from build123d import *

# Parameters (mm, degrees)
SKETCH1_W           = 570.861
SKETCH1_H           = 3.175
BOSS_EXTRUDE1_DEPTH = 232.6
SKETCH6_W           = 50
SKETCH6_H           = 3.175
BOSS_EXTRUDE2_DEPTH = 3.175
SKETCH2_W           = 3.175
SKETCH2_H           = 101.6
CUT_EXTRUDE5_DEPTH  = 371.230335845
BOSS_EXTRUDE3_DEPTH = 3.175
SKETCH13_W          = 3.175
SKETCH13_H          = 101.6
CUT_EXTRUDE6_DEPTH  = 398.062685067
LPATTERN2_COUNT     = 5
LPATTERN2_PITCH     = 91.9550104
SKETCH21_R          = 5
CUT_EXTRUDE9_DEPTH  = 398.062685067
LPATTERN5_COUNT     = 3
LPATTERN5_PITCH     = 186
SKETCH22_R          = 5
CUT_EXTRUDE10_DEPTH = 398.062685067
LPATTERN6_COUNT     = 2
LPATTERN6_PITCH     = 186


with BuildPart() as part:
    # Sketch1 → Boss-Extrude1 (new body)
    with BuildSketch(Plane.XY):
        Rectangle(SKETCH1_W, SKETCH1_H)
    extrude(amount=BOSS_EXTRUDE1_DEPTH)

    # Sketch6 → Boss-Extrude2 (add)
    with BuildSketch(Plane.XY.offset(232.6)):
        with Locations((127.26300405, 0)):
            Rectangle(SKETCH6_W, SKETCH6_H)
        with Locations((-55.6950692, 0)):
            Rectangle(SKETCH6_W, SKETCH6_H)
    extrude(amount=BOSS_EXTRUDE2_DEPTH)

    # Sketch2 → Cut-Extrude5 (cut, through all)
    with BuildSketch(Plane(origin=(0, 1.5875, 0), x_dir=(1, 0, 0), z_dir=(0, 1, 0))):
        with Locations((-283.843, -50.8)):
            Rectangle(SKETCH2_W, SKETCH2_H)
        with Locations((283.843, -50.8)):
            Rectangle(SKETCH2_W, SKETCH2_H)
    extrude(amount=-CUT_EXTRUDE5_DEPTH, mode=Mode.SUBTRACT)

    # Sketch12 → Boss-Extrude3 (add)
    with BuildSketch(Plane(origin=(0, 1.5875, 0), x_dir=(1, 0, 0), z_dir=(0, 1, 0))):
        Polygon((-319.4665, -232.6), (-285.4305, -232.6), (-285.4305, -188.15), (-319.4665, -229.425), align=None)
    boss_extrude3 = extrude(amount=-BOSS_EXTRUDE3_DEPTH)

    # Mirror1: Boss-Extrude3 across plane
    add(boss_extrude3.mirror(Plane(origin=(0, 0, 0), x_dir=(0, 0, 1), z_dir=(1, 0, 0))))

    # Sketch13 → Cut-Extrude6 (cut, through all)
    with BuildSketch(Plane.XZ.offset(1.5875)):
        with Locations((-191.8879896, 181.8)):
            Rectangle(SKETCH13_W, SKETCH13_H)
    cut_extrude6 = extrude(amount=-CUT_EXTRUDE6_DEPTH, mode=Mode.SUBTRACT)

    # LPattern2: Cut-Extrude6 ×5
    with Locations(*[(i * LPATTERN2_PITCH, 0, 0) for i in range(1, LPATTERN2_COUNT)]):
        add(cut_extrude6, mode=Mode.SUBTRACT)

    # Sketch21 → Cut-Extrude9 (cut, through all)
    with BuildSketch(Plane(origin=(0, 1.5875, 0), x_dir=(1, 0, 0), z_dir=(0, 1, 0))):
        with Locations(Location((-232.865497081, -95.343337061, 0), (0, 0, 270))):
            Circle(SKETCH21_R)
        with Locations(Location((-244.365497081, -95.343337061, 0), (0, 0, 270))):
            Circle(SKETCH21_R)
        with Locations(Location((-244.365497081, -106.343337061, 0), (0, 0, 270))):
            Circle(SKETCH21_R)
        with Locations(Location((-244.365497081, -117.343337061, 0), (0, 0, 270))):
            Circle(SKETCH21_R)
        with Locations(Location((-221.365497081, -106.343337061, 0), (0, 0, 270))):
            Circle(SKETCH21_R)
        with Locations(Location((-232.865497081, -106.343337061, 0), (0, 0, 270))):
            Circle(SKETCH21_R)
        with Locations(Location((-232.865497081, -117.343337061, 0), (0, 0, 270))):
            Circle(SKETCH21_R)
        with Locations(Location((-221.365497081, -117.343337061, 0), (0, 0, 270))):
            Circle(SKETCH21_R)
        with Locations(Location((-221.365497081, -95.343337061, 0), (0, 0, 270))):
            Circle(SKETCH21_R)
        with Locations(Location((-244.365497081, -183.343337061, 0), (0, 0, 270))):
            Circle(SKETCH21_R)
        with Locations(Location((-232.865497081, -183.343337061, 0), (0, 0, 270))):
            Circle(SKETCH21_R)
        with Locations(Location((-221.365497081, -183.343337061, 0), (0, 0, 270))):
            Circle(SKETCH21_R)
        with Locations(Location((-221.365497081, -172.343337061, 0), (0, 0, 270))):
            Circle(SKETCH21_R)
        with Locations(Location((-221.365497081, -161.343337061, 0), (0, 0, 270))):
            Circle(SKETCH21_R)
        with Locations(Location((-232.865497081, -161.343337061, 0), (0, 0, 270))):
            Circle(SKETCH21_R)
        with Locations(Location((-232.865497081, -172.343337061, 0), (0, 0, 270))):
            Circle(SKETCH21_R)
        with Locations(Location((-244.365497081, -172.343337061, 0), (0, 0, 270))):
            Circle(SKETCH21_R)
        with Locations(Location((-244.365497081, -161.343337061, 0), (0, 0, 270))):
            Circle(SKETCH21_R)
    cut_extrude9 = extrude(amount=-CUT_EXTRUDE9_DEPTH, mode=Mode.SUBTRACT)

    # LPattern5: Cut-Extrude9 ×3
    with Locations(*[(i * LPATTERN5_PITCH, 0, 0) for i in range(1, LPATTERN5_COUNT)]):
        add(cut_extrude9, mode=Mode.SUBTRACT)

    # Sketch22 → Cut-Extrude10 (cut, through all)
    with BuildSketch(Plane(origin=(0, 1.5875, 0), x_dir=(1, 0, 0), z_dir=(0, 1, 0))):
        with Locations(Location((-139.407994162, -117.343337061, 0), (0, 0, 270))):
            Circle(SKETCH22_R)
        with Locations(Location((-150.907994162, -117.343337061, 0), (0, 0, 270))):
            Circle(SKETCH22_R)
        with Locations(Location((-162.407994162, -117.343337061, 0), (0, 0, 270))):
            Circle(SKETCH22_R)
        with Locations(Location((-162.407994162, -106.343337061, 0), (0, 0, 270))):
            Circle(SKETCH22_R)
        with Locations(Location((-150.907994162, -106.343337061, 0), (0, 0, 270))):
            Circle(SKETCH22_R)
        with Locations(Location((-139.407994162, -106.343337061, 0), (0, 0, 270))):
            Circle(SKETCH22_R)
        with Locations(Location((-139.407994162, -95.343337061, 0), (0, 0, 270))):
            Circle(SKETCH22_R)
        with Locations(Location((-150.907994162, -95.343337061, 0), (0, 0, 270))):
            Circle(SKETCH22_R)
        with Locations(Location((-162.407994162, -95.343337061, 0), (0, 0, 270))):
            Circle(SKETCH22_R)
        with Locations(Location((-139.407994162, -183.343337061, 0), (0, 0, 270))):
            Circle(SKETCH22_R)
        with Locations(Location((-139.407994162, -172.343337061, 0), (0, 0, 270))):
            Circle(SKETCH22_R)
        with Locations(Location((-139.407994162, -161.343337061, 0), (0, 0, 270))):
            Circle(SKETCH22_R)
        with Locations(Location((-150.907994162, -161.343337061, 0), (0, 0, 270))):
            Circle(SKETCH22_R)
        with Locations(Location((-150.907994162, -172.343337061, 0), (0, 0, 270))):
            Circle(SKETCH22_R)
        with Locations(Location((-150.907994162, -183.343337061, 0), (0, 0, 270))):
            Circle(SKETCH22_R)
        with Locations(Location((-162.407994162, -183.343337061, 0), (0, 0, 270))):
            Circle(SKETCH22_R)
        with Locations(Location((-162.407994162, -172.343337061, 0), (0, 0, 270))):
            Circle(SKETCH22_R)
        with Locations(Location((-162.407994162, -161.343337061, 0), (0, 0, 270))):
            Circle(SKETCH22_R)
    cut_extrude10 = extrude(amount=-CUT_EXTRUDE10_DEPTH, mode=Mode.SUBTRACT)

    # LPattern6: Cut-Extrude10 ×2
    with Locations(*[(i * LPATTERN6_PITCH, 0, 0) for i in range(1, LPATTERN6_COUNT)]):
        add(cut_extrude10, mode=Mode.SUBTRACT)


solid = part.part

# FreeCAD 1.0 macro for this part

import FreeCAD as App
import Part
import Sketcher
Q = App.Units.Quantity

doc = App.newDocument("Part")
body = doc.addObject("PartDesign::Body", "Body")

# Sketch on XY plane
sketch1 = doc.addObject("Sketcher::SketchObject", "Sketch")
body.addObject(sketch1)
sketch1.AttachmentSupport = (doc.XY_Plane, [""])
sketch1.MapMode = "FlatFace"
sketch1.addGeometry(Part.LineSegment(App.Vector(-285.4305, 1.5875, 0), App.Vector(-285.4305, -1.5875, 0)), False)
sketch1.addGeometry(Part.LineSegment(App.Vector(-285.4305, -1.5875, 0), App.Vector(285.4305, -1.5875, 0)), False)
sketch1.addGeometry(Part.LineSegment(App.Vector(285.4305, -1.5875, 0), App.Vector(285.4305, 1.5875, 0)), False)
sketch1.addGeometry(Part.LineSegment(App.Vector(285.4305, 1.5875, 0), App.Vector(-285.4305, 1.5875, 0)), False)
sketch1.addConstraint(Sketcher.Constraint("Coincident", 0, 2, 1, 1))
sketch1.addConstraint(Sketcher.Constraint("Coincident", 1, 2, 2, 1))
sketch1.addConstraint(Sketcher.Constraint("Coincident", 2, 2, 3, 1))
sketch1.addConstraint(Sketcher.Constraint("Coincident", 3, 2, 0, 1))
sketch1.addConstraint(Sketcher.Constraint("Vertical", 0))
sketch1.addConstraint(Sketcher.Constraint("Horizontal", 1))
sketch1.addConstraint(Sketcher.Constraint("Vertical", 2))
sketch1.addConstraint(Sketcher.Constraint("Horizontal", 3))
sketch1.addConstraint(Sketcher.Constraint("Symmetric", 0, 2, 2, 2, -1, 1))
sketch1.addConstraint(Sketcher.Constraint("DistanceY", 0, 2, 0, 1, Q("0.125 in")))
sketch1.addConstraint(Sketcher.Constraint("DistanceX", 1, 1, 1, 2, Q("570.861 mm")))
pad1 = doc.addObject("PartDesign::Pad", "Pad")
body.addObject(pad1)
pad1.Profile = sketch1
pad1.Length = 232.6

# Sketch on XY plane
sketch2 = doc.addObject("Sketcher::SketchObject", "Sketch001")
body.addObject(sketch2)
sketch2.AttachmentSupport = (doc.XY_Plane, [""])
sketch2.MapMode = "FlatFace"
sketch2.AttachmentOffset = App.Placement(App.Vector(0, 0, 232.6), App.Rotation())
sketch2.addGeometry(Part.LineSegment(App.Vector(102.263004, 1.5875, 0), App.Vector(102.263004, -1.5875, 0)), False)
sketch2.addGeometry(Part.LineSegment(App.Vector(102.263004, -1.5875, 0), App.Vector(152.263004, -1.5875, 0)), False)
sketch2.addGeometry(Part.LineSegment(App.Vector(152.263004, -1.5875, 0), App.Vector(152.263004, 1.5875, 0)), False)
sketch2.addGeometry(Part.LineSegment(App.Vector(152.263004, 1.5875, 0), App.Vector(102.263004, 1.5875, 0)), False)
sketch2.addGeometry(Part.LineSegment(App.Vector(-80.695069, 1.5875, 0), App.Vector(-80.695069, -1.5875, 0)), False)
sketch2.addGeometry(Part.LineSegment(App.Vector(-80.695069, -1.5875, 0), App.Vector(-30.695069, -1.5875, 0)), False)
sketch2.addGeometry(Part.LineSegment(App.Vector(-30.695069, -1.5875, 0), App.Vector(-30.695069, 1.5875, 0)), False)
sketch2.addGeometry(Part.LineSegment(App.Vector(-30.695069, 1.5875, 0), App.Vector(-80.695069, 1.5875, 0)), False)
sketch2.addConstraint(Sketcher.Constraint("Coincident", 0, 2, 1, 1))
sketch2.addConstraint(Sketcher.Constraint("Coincident", 1, 2, 2, 1))
sketch2.addConstraint(Sketcher.Constraint("Coincident", 2, 2, 3, 1))
sketch2.addConstraint(Sketcher.Constraint("Coincident", 3, 2, 0, 1))
sketch2.addConstraint(Sketcher.Constraint("Coincident", 4, 2, 5, 1))
sketch2.addConstraint(Sketcher.Constraint("Coincident", 5, 2, 6, 1))
sketch2.addConstraint(Sketcher.Constraint("Coincident", 6, 2, 7, 1))
sketch2.addConstraint(Sketcher.Constraint("Coincident", 7, 2, 4, 1))
sketch2.addConstraint(Sketcher.Constraint("Vertical", 0))
sketch2.addConstraint(Sketcher.Constraint("Horizontal", 1))
sketch2.addConstraint(Sketcher.Constraint("Vertical", 2))
sketch2.addConstraint(Sketcher.Constraint("Horizontal", 3))
sketch2.addConstraint(Sketcher.Constraint("Vertical", 4))
sketch2.addConstraint(Sketcher.Constraint("Horizontal", 5))
sketch2.addConstraint(Sketcher.Constraint("Vertical", 6))
sketch2.addConstraint(Sketcher.Constraint("Horizontal", 7))
sketch2.addConstraint(Sketcher.Constraint("Horizontal", 1, 2, 4, 2))
sketch2.addConstraint(Sketcher.Constraint("Horizontal", 3, 2, 6, 2))
sketch2.addConstraint(Sketcher.Constraint("Equal", 3, 5))
sketch2.addConstraint(Sketcher.Constraint("DistanceY", 0, 2, 0, 1, Q("0.125 in")))
sketch2.addConstraint(Sketcher.Constraint("DistanceY", 0, 2, -1, 1, Q("0.0625 in")))
sketch2.addConstraint(Sketcher.Constraint("DistanceX", 1, 1, 1, 2, Q("50 mm")))
sketch2.addConstraint(Sketcher.Constraint("DistanceX", 4, 2, -1, 1, Q("80.695069 mm")))
sketch2.addConstraint(Sketcher.Constraint("DistanceX", -1, 1, 0, 2, Q("102.263004 mm")))
pad2 = doc.addObject("PartDesign::Pad", "Pad001")
body.addObject(pad2)
pad2.Profile = sketch2
pad2.Length = Q("0.125 in")

# Sketch on XZ plane
sketch3 = doc.addObject("Sketcher::SketchObject", "Sketch002")
body.addObject(sketch3)
sketch3.AttachmentSupport = (doc.XZ_Plane, [""])
sketch3.MapMode = "FlatFace"
sketch3.AttachmentOffset = App.Placement(App.Vector(0, 0, -0.0625 * 25.4), App.Rotation())
sketch3.addGeometry(Part.LineSegment(App.Vector(-285.4305, 0, 0), App.Vector(-285.4305, 101.6, 0)), False)
sketch3.addGeometry(Part.LineSegment(App.Vector(-285.4305, 101.6, 0), App.Vector(-282.2555, 101.6, 0)), False)
sketch3.addGeometry(Part.LineSegment(App.Vector(-282.2555, 101.6, 0), App.Vector(-282.2555, 0, 0)), False)
sketch3.addGeometry(Part.LineSegment(App.Vector(-282.2555, 0, 0), App.Vector(-285.4305, 0, 0)), False)
sketch3.addGeometry(Part.LineSegment(App.Vector(282.2555, 0, 0), App.Vector(282.2555, 101.6, 0)), False)
sketch3.addGeometry(Part.LineSegment(App.Vector(282.2555, 101.6, 0), App.Vector(285.4305, 101.6, 0)), False)
sketch3.addGeometry(Part.LineSegment(App.Vector(285.4305, 101.6, 0), App.Vector(285.4305, 0, 0)), False)
sketch3.addGeometry(Part.LineSegment(App.Vector(285.4305, 0, 0), App.Vector(282.2555, 0, 0)), False)
sketch3.addConstraint(Sketcher.Constraint("Coincident", 0, 2, 1, 1))
sketch3.addConstraint(Sketcher.Constraint("Coincident", 1, 2, 2, 1))
sketch3.addConstraint(Sketcher.Constraint("Coincident", 2, 2, 3, 1))
sketch3.addConstraint(Sketcher.Constraint("Coincident", 3, 2, 0, 1))
sketch3.addConstraint(Sketcher.Constraint("Coincident", 4, 2, 5, 1))
sketch3.addConstraint(Sketcher.Constraint("Coincident", 5, 2, 6, 1))
sketch3.addConstraint(Sketcher.Constraint("Coincident", 6, 2, 7, 1))
sketch3.addConstraint(Sketcher.Constraint("Coincident", 7, 2, 4, 1))
sketch3.addConstraint(Sketcher.Constraint("Vertical", 0))
sketch3.addConstraint(Sketcher.Constraint("Horizontal", 1))
sketch3.addConstraint(Sketcher.Constraint("Vertical", 2))
sketch3.addConstraint(Sketcher.Constraint("Horizontal", 3))
sketch3.addConstraint(Sketcher.Constraint("Vertical", 4))
sketch3.addConstraint(Sketcher.Constraint("Horizontal", 5))
sketch3.addConstraint(Sketcher.Constraint("Vertical", 6))
sketch3.addConstraint(Sketcher.Constraint("Horizontal", 7))
sketch3.addConstraint(Sketcher.Constraint("Symmetric", 3, 2, 6, 2, -1, 1))
sketch3.addConstraint(Sketcher.Constraint("Symmetric", 1, 2, 4, 2, -2))
sketch3.addConstraint(Sketcher.Constraint("PointOnObject", 2, 2, -1))
sketch3.addConstraint(Sketcher.Constraint("DistanceY", 0, 1, 0, 2, Q("4 in")))
sketch3.addConstraint(Sketcher.Constraint("DistanceX", 1, 1, 1, 2, Q("0.125 in")))
sketch3.addConstraint(Sketcher.Constraint("DistanceX", 0, 2, -1, 1, Q("285.4305 mm")))
pocket1 = doc.addObject("PartDesign::Pocket", "Pocket")
body.addObject(pocket1)
pocket1.Profile = sketch3
pocket1.Type = "ThroughAll"
pocket1.Reversed = True

# Sketch on XZ plane
sketch4 = doc.addObject("Sketcher::SketchObject", "Sketch003")
body.addObject(sketch4)
sketch4.AttachmentSupport = (doc.XZ_Plane, [""])
sketch4.MapMode = "FlatFace"
sketch4.AttachmentOffset = App.Placement(App.Vector(0, 0, -0.0625 * 25.4), App.Rotation())
sketch4.addGeometry(Part.LineSegment(App.Vector(-319.4665, 232.6, 0), App.Vector(-285.4305, 232.6, 0)), False)
sketch4.addGeometry(Part.LineSegment(App.Vector(-285.4305, 232.6, 0), App.Vector(-285.4305, 188.15, 0)), False)
sketch4.addGeometry(Part.LineSegment(App.Vector(-285.4305, 188.15, 0), App.Vector(-319.4665, 229.425, 0)), False)
sketch4.addGeometry(Part.LineSegment(App.Vector(-319.4665, 229.425, 0), App.Vector(-319.4665, 232.6, 0)), False)
sketch4.addConstraint(Sketcher.Constraint("Coincident", 0, 2, 1, 1))
sketch4.addConstraint(Sketcher.Constraint("Coincident", 1, 2, 2, 1))
sketch4.addConstraint(Sketcher.Constraint("Coincident", 2, 2, 3, 1))
sketch4.addConstraint(Sketcher.Constraint("Coincident", 3, 2, 0, 1))
sketch4.addConstraint(Sketcher.Constraint("Horizontal", 0))
sketch4.addConstraint(Sketcher.Constraint("Vertical", 1))
sketch4.addConstraint(Sketcher.Constraint("Vertical", 3))
sketch4.addConstraint(Sketcher.Constraint("DistanceX", 0, 1, 0, 2, Q("1.34 in")))
sketch4.addConstraint(Sketcher.Constraint("DistanceY", 1, 2, 1, 1, Q("1.75 in")))
sketch4.addConstraint(Sketcher.Constraint("DistanceY", 3, 1, 3, 2, Q("0.125 in")))
sketch4.addConstraint(Sketcher.Constraint("DistanceX", 0, 2, -1, 1, Q("285.4305 mm")))
sketch4.addConstraint(Sketcher.Constraint("DistanceY", -1, 1, 0, 2, Q("232.6 mm")))
pad3 = doc.addObject("PartDesign::Pad", "Pad002")
body.addObject(pad3)
pad3.Profile = sketch4
pad3.Length = Q("0.125 in")
doc.recompute()

mirrored = doc.addObject("PartDesign::Mirrored", "Mirrored")
body.addObject(mirrored)
mirrored.Originals = [pad3]
mirrored.MirrorPlane = (doc.YZ_Plane, [""])
body.Tip = mirrored

# Sketch on XZ plane
sketch5 = doc.addObject("Sketcher::SketchObject", "Sketch004")
body.addObject(sketch5)
sketch5.AttachmentSupport = (doc.XZ_Plane, [""])
sketch5.MapMode = "FlatFace"
sketch5.AttachmentOffset = App.Placement(App.Vector(0, 0, 0.0625 * 25.4), App.Rotation())
sketch5.addGeometry(Part.LineSegment(App.Vector(-193.47549, 232.6, 0), App.Vector(-193.47549, 131, 0)), False)
sketch5.addGeometry(Part.LineSegment(App.Vector(-193.47549, 131, 0), App.Vector(-190.30049, 131, 0)), False)
sketch5.addGeometry(Part.LineSegment(App.Vector(-190.30049, 131, 0), App.Vector(-190.30049, 232.6, 0)), False)
sketch5.addGeometry(Part.LineSegment(App.Vector(-190.30049, 232.6, 0), App.Vector(-193.47549, 232.6, 0)), False)
sketch5.addConstraint(Sketcher.Constraint("Coincident", 0, 2, 1, 1))
sketch5.addConstraint(Sketcher.Constraint("Coincident", 1, 2, 2, 1))
sketch5.addConstraint(Sketcher.Constraint("Coincident", 2, 2, 3, 1))
sketch5.addConstraint(Sketcher.Constraint("Coincident", 3, 2, 0, 1))
sketch5.addConstraint(Sketcher.Constraint("Vertical", 0))
sketch5.addConstraint(Sketcher.Constraint("Horizontal", 1))
sketch5.addConstraint(Sketcher.Constraint("Vertical", 2))
sketch5.addConstraint(Sketcher.Constraint("Horizontal", 3))
sketch5.addConstraint(Sketcher.Constraint("DistanceY", 0, 2, 0, 1, Q("4 in")))
sketch5.addConstraint(Sketcher.Constraint("DistanceX", 1, 1, 1, 2, Q("0.125 in")))
sketch5.addConstraint(Sketcher.Constraint("DistanceY", -1, 1, 0, 2, Q("131 mm")))
sketch5.addConstraint(Sketcher.Constraint("DistanceX", 0, 2, -1, 1, Q("193.47549 mm")))
pocket2 = doc.addObject("PartDesign::Pocket", "Pocket001")
body.addObject(pocket2)
pocket2.Profile = sketch5
pocket2.Type = "ThroughAll"
doc.recompute()

linearpattern = doc.addObject("PartDesign::LinearPattern", "LinearPattern")
body.addObject(linearpattern)
linearpattern.Originals = [pocket2]
linearpattern.Direction = (doc.X_Axis, [""])
linearpattern.Mode = "offset"
linearpattern.Offset = 91.95501
linearpattern.Occurrences = 5
body.Tip = linearpattern

# Sketch on XZ plane
sketch6 = doc.addObject("Sketcher::SketchObject", "Sketch005")
body.addObject(sketch6)
sketch6.AttachmentSupport = (doc.XZ_Plane, [""])
sketch6.MapMode = "FlatFace"
sketch6.AttachmentOffset = App.Placement(App.Vector(0, 0, -0.0625 * 25.4), App.Rotation())
sketch6.addGeometry(Part.Circle(App.Vector(-232.865497, 95.343337, 0), App.Vector(0, 0, 1), 5), False)
sketch6.addGeometry(Part.Circle(App.Vector(-244.365497, 95.343337, 0), App.Vector(0, 0, 1), 5), False)
sketch6.addGeometry(Part.Circle(App.Vector(-244.365497, 106.343337, 0), App.Vector(0, 0, 1), 5), False)
sketch6.addGeometry(Part.Circle(App.Vector(-244.365497, 117.343337, 0), App.Vector(0, 0, 1), 5), False)
sketch6.addGeometry(Part.Circle(App.Vector(-221.365497, 106.343337, 0), App.Vector(0, 0, 1), 5), False)
sketch6.addGeometry(Part.Circle(App.Vector(-232.865497, 106.343337, 0), App.Vector(0, 0, 1), 5), False)
sketch6.addGeometry(Part.Circle(App.Vector(-232.865497, 117.343337, 0), App.Vector(0, 0, 1), 5), False)
sketch6.addGeometry(Part.Circle(App.Vector(-221.365497, 117.343337, 0), App.Vector(0, 0, 1), 5), False)
sketch6.addGeometry(Part.Circle(App.Vector(-221.365497, 95.343337, 0), App.Vector(0, 0, 1), 5), False)
sketch6.addGeometry(Part.Circle(App.Vector(-244.365497, 183.343337, 0), App.Vector(0, 0, 1), 5), False)
sketch6.addGeometry(Part.Circle(App.Vector(-232.865497, 183.343337, 0), App.Vector(0, 0, 1), 5), False)
sketch6.addGeometry(Part.Circle(App.Vector(-221.365497, 183.343337, 0), App.Vector(0, 0, 1), 5), False)
sketch6.addGeometry(Part.Circle(App.Vector(-221.365497, 172.343337, 0), App.Vector(0, 0, 1), 5), False)
sketch6.addGeometry(Part.Circle(App.Vector(-221.365497, 161.343337, 0), App.Vector(0, 0, 1), 5), False)
sketch6.addGeometry(Part.Circle(App.Vector(-232.865497, 161.343337, 0), App.Vector(0, 0, 1), 5), False)
sketch6.addGeometry(Part.Circle(App.Vector(-232.865497, 172.343337, 0), App.Vector(0, 0, 1), 5), False)
sketch6.addGeometry(Part.Circle(App.Vector(-244.365497, 172.343337, 0), App.Vector(0, 0, 1), 5), False)
sketch6.addGeometry(Part.Circle(App.Vector(-244.365497, 161.343337, 0), App.Vector(0, 0, 1), 5), False)
sketch6.addConstraint(Sketcher.Constraint("Equal", 0, 1))
sketch6.addConstraint(Sketcher.Constraint("Equal", 1, 2))
sketch6.addConstraint(Sketcher.Constraint("Equal", 2, 3))
sketch6.addConstraint(Sketcher.Constraint("Equal", 3, 4))
sketch6.addConstraint(Sketcher.Constraint("Equal", 4, 5))
sketch6.addConstraint(Sketcher.Constraint("Equal", 5, 6))
sketch6.addConstraint(Sketcher.Constraint("Equal", 6, 7))
sketch6.addConstraint(Sketcher.Constraint("Equal", 7, 8))
sketch6.addConstraint(Sketcher.Constraint("Equal", 8, 9))
sketch6.addConstraint(Sketcher.Constraint("Equal", 9, 10))
sketch6.addConstraint(Sketcher.Constraint("Equal", 10, 11))
sketch6.addConstraint(Sketcher.Constraint("Equal", 11, 12))
sketch6.addConstraint(Sketcher.Constraint("Equal", 12, 13))
sketch6.addConstraint(Sketcher.Constraint("Equal", 13, 14))
sketch6.addConstraint(Sketcher.Constraint("Equal", 14, 15))
sketch6.addConstraint(Sketcher.Constraint("Equal", 15, 16))
sketch6.addConstraint(Sketcher.Constraint("Equal", 16, 17))
sketch6.addConstraint(Sketcher.Constraint("Horizontal", 0, 3, 1, 3))
sketch6.addConstraint(Sketcher.Constraint("Horizontal", 2, 3, 4, 3))
sketch6.addConstraint(Sketcher.Constraint("Horizontal", 4, 3, 5, 3))
sketch6.addConstraint(Sketcher.Constraint("Horizontal", 3, 3, 6, 3))
sketch6.addConstraint(Sketcher.Constraint("Horizontal", 6, 3, 7, 3))
sketch6.addConstraint(Sketcher.Constraint("Horizontal", 1, 3, 8, 3))
sketch6.addConstraint(Sketcher.Constraint("Horizontal", 9, 3, 10, 3))
sketch6.addConstraint(Sketcher.Constraint("Horizontal", 10, 3, 11, 3))
sketch6.addConstraint(Sketcher.Constraint("Horizontal", 13, 3, 14, 3))
sketch6.addConstraint(Sketcher.Constraint("Horizontal", 12, 3, 15, 3))
sketch6.addConstraint(Sketcher.Constraint("Horizontal", 15, 3, 16, 3))
sketch6.addConstraint(Sketcher.Constraint("Horizontal", 14, 3, 17, 3))
sketch6.addConstraint(Sketcher.Constraint("Vertical", 1, 3, 2, 3))
sketch6.addConstraint(Sketcher.Constraint("Vertical", 2, 3, 3, 3))
sketch6.addConstraint(Sketcher.Constraint("Vertical", 0, 3, 5, 3))
sketch6.addConstraint(Sketcher.Constraint("Vertical", 5, 3, 6, 3))
sketch6.addConstraint(Sketcher.Constraint("Vertical", 4, 3, 7, 3))
sketch6.addConstraint(Sketcher.Constraint("Vertical", 7, 3, 8, 3))
sketch6.addConstraint(Sketcher.Constraint("Vertical", 3, 3, 9, 3))
sketch6.addConstraint(Sketcher.Constraint("Vertical", 6, 3, 10, 3))
sketch6.addConstraint(Sketcher.Constraint("Vertical", 8, 3, 11, 3))
sketch6.addConstraint(Sketcher.Constraint("Vertical", 11, 3, 12, 3))
sketch6.addConstraint(Sketcher.Constraint("Vertical", 12, 3, 13, 3))
sketch6.addConstraint(Sketcher.Constraint("Vertical", 10, 3, 14, 3))
sketch6.addConstraint(Sketcher.Constraint("Vertical", 14, 3, 15, 3))
sketch6.addConstraint(Sketcher.Constraint("Vertical", 9, 3, 16, 3))
sketch6.addConstraint(Sketcher.Constraint("Vertical", 16, 3, 17, 3))
sketch6.addConstraint(Sketcher.Constraint("Diameter", 0, Q("10 mm")))
sketch6.addConstraint(Sketcher.Constraint("DistanceY", -1, 1, 13, 3, Q("6.3520999 in")))
sketch6.addConstraint(Sketcher.Constraint("DistanceX", 1, 3, 0, 3, Q("11.5 mm")))
sketch6.addConstraint(Sketcher.Constraint("DistanceY", 1, 3, 2, 3, Q("11 mm")))
sketch6.addConstraint(Sketcher.Constraint("DistanceY", 2, 3, 3, 3, Q("11 mm")))
sketch6.addConstraint(Sketcher.Constraint("DistanceX", 0, 3, 4, 3, Q("11.5 mm")))
sketch6.addConstraint(Sketcher.Constraint("DistanceY", 3, 3, 9, 3, Q("66 mm")))
sketch6.addConstraint(Sketcher.Constraint("DistanceY", 12, 3, 11, 3, Q("11 mm")))
sketch6.addConstraint(Sketcher.Constraint("DistanceY", 13, 3, 12, 3, Q("11 mm")))
sketch6.addConstraint(Sketcher.Constraint("DistanceX", 0, 3, -1, 1, Q("232.865497 mm")))
pocket3 = doc.addObject("PartDesign::Pocket", "Pocket002")
body.addObject(pocket3)
pocket3.Profile = sketch6
pocket3.Type = "ThroughAll"
pocket3.Reversed = True
doc.recompute()

linearpattern2 = doc.addObject("PartDesign::LinearPattern", "LinearPattern001")
body.addObject(linearpattern2)
linearpattern2.Originals = [pocket3]
linearpattern2.Direction = (doc.X_Axis, [""])
linearpattern2.Mode = "offset"
linearpattern2.Offset = 186
linearpattern2.Occurrences = 3
body.Tip = linearpattern2

# Sketch on XZ plane
sketch7 = doc.addObject("Sketcher::SketchObject", "Sketch006")
body.addObject(sketch7)
sketch7.AttachmentSupport = (doc.XZ_Plane, [""])
sketch7.MapMode = "FlatFace"
sketch7.AttachmentOffset = App.Placement(App.Vector(0, 0, -0.0625 * 25.4), App.Rotation())
sketch7.addGeometry(Part.Circle(App.Vector(-139.407994, 117.343337, 0), App.Vector(0, 0, 1), 5), False)
sketch7.addGeometry(Part.Circle(App.Vector(-150.907994, 117.343337, 0), App.Vector(0, 0, 1), 5), False)
sketch7.addGeometry(Part.Circle(App.Vector(-162.407994, 117.343337, 0), App.Vector(0, 0, 1), 5), False)
sketch7.addGeometry(Part.Circle(App.Vector(-162.407994, 106.343337, 0), App.Vector(0, 0, 1), 5), False)
sketch7.addGeometry(Part.Circle(App.Vector(-150.907994, 106.343337, 0), App.Vector(0, 0, 1), 5), False)
sketch7.addGeometry(Part.Circle(App.Vector(-139.407994, 106.343337, 0), App.Vector(0, 0, 1), 5), False)
sketch7.addGeometry(Part.Circle(App.Vector(-139.407994, 95.343337, 0), App.Vector(0, 0, 1), 5), False)
sketch7.addGeometry(Part.Circle(App.Vector(-150.907994, 95.343337, 0), App.Vector(0, 0, 1), 5), False)
sketch7.addGeometry(Part.Circle(App.Vector(-162.407994, 95.343337, 0), App.Vector(0, 0, 1), 5), False)
sketch7.addGeometry(Part.Circle(App.Vector(-139.407994, 183.343337, 0), App.Vector(0, 0, 1), 5), False)
sketch7.addGeometry(Part.Circle(App.Vector(-139.407994, 172.343337, 0), App.Vector(0, 0, 1), 5), False)
sketch7.addGeometry(Part.Circle(App.Vector(-139.407994, 161.343337, 0), App.Vector(0, 0, 1), 5), False)
sketch7.addGeometry(Part.Circle(App.Vector(-150.907994, 161.343337, 0), App.Vector(0, 0, 1), 5), False)
sketch7.addGeometry(Part.Circle(App.Vector(-150.907994, 172.343337, 0), App.Vector(0, 0, 1), 5), False)
sketch7.addGeometry(Part.Circle(App.Vector(-150.907994, 183.343337, 0), App.Vector(0, 0, 1), 5), False)
sketch7.addGeometry(Part.Circle(App.Vector(-162.407994, 183.343337, 0), App.Vector(0, 0, 1), 5), False)
sketch7.addGeometry(Part.Circle(App.Vector(-162.407994, 172.343337, 0), App.Vector(0, 0, 1), 5), False)
sketch7.addGeometry(Part.Circle(App.Vector(-162.407994, 161.343337, 0), App.Vector(0, 0, 1), 5), False)
sketch7.addConstraint(Sketcher.Constraint("Equal", 0, 1))
sketch7.addConstraint(Sketcher.Constraint("Equal", 1, 2))
sketch7.addConstraint(Sketcher.Constraint("Equal", 2, 3))
sketch7.addConstraint(Sketcher.Constraint("Equal", 3, 4))
sketch7.addConstraint(Sketcher.Constraint("Equal", 4, 5))
sketch7.addConstraint(Sketcher.Constraint("Equal", 5, 6))
sketch7.addConstraint(Sketcher.Constraint("Equal", 6, 7))
sketch7.addConstraint(Sketcher.Constraint("Equal", 7, 8))
sketch7.addConstraint(Sketcher.Constraint("Equal", 8, 9))
sketch7.addConstraint(Sketcher.Constraint("Equal", 9, 10))
sketch7.addConstraint(Sketcher.Constraint("Equal", 10, 11))
sketch7.addConstraint(Sketcher.Constraint("Equal", 11, 12))
sketch7.addConstraint(Sketcher.Constraint("Equal", 12, 13))
sketch7.addConstraint(Sketcher.Constraint("Equal", 13, 14))
sketch7.addConstraint(Sketcher.Constraint("Equal", 14, 15))
sketch7.addConstraint(Sketcher.Constraint("Equal", 15, 16))
sketch7.addConstraint(Sketcher.Constraint("Equal", 16, 17))
sketch7.addConstraint(Sketcher.Constraint("Horizontal", 0, 3, 1, 3))
sketch7.addConstraint(Sketcher.Constraint("Horizontal", 1, 3, 2, 3))
sketch7.addConstraint(Sketcher.Constraint("Horizontal", 3, 3, 4, 3))
sketch7.addConstraint(Sketcher.Constraint("Horizontal", 4, 3, 5, 3))
sketch7.addConstraint(Sketcher.Constraint("Horizontal", 6, 3, 7, 3))
sketch7.addConstraint(Sketcher.Constraint("Horizontal", 7, 3, 8, 3))
sketch7.addConstraint(Sketcher.Constraint("Horizontal", 11, 3, 12, 3))
sketch7.addConstraint(Sketcher.Constraint("Horizontal", 10, 3, 13, 3))
sketch7.addConstraint(Sketcher.Constraint("Horizontal", 9, 3, 14, 3))
sketch7.addConstraint(Sketcher.Constraint("Horizontal", 14, 3, 15, 3))
sketch7.addConstraint(Sketcher.Constraint("Horizontal", 13, 3, 16, 3))
sketch7.addConstraint(Sketcher.Constraint("Horizontal", 12, 3, 17, 3))
sketch7.addConstraint(Sketcher.Constraint("Vertical", 2, 3, 3, 3))
sketch7.addConstraint(Sketcher.Constraint("Vertical", 1, 3, 4, 3))
sketch7.addConstraint(Sketcher.Constraint("Vertical", 0, 3, 5, 3))
sketch7.addConstraint(Sketcher.Constraint("Vertical", 5, 3, 6, 3))
sketch7.addConstraint(Sketcher.Constraint("Vertical", 4, 3, 7, 3))
sketch7.addConstraint(Sketcher.Constraint("Vertical", 3, 3, 8, 3))
sketch7.addConstraint(Sketcher.Constraint("Vertical", 6, 3, 9, 3))
sketch7.addConstraint(Sketcher.Constraint("Vertical", 9, 3, 10, 3))
sketch7.addConstraint(Sketcher.Constraint("Vertical", 10, 3, 11, 3))
sketch7.addConstraint(Sketcher.Constraint("Vertical", 7, 3, 12, 3))
sketch7.addConstraint(Sketcher.Constraint("Vertical", 12, 3, 13, 3))
sketch7.addConstraint(Sketcher.Constraint("Vertical", 13, 3, 14, 3))
sketch7.addConstraint(Sketcher.Constraint("Vertical", 8, 3, 15, 3))
sketch7.addConstraint(Sketcher.Constraint("Vertical", 15, 3, 16, 3))
sketch7.addConstraint(Sketcher.Constraint("Vertical", 16, 3, 17, 3))
sketch7.addConstraint(Sketcher.Constraint("Diameter", 0, Q("10 mm")))
sketch7.addConstraint(Sketcher.Constraint("DistanceY", -1, 1, 11, 3, Q("6.3520999 in")))
sketch7.addConstraint(Sketcher.Constraint("DistanceX", 1, 3, 0, 3, Q("11.5 mm")))
sketch7.addConstraint(Sketcher.Constraint("DistanceX", 2, 3, 1, 3, Q("11.5 mm")))
sketch7.addConstraint(Sketcher.Constraint("DistanceY", 3, 3, 2, 3, Q("11 mm")))
sketch7.addConstraint(Sketcher.Constraint("DistanceY", 6, 3, 5, 3, Q("11 mm")))
sketch7.addConstraint(Sketcher.Constraint("DistanceY", 0, 3, 9, 3, Q("66 mm")))
sketch7.addConstraint(Sketcher.Constraint("DistanceY", 10, 3, 9, 3, Q("11 mm")))
sketch7.addConstraint(Sketcher.Constraint("DistanceY", 11, 3, 10, 3, Q("11 mm")))
sketch7.addConstraint(Sketcher.Constraint("DistanceX", 0, 3, -1, 1, Q("139.407994 mm")))
pocket4 = doc.addObject("PartDesign::Pocket", "Pocket003")
body.addObject(pocket4)
pocket4.Profile = sketch7
pocket4.Type = "ThroughAll"
pocket4.Reversed = True
doc.recompute()

linearpattern3 = doc.addObject("PartDesign::LinearPattern", "LinearPattern002")
body.addObject(linearpattern3)
linearpattern3.Originals = [pocket4]
linearpattern3.Direction = (doc.X_Axis, [""])
linearpattern3.Mode = "offset"
linearpattern3.Offset = 186
linearpattern3.Occurrences = 2
body.Tip = linearpattern3

doc.recompute()
